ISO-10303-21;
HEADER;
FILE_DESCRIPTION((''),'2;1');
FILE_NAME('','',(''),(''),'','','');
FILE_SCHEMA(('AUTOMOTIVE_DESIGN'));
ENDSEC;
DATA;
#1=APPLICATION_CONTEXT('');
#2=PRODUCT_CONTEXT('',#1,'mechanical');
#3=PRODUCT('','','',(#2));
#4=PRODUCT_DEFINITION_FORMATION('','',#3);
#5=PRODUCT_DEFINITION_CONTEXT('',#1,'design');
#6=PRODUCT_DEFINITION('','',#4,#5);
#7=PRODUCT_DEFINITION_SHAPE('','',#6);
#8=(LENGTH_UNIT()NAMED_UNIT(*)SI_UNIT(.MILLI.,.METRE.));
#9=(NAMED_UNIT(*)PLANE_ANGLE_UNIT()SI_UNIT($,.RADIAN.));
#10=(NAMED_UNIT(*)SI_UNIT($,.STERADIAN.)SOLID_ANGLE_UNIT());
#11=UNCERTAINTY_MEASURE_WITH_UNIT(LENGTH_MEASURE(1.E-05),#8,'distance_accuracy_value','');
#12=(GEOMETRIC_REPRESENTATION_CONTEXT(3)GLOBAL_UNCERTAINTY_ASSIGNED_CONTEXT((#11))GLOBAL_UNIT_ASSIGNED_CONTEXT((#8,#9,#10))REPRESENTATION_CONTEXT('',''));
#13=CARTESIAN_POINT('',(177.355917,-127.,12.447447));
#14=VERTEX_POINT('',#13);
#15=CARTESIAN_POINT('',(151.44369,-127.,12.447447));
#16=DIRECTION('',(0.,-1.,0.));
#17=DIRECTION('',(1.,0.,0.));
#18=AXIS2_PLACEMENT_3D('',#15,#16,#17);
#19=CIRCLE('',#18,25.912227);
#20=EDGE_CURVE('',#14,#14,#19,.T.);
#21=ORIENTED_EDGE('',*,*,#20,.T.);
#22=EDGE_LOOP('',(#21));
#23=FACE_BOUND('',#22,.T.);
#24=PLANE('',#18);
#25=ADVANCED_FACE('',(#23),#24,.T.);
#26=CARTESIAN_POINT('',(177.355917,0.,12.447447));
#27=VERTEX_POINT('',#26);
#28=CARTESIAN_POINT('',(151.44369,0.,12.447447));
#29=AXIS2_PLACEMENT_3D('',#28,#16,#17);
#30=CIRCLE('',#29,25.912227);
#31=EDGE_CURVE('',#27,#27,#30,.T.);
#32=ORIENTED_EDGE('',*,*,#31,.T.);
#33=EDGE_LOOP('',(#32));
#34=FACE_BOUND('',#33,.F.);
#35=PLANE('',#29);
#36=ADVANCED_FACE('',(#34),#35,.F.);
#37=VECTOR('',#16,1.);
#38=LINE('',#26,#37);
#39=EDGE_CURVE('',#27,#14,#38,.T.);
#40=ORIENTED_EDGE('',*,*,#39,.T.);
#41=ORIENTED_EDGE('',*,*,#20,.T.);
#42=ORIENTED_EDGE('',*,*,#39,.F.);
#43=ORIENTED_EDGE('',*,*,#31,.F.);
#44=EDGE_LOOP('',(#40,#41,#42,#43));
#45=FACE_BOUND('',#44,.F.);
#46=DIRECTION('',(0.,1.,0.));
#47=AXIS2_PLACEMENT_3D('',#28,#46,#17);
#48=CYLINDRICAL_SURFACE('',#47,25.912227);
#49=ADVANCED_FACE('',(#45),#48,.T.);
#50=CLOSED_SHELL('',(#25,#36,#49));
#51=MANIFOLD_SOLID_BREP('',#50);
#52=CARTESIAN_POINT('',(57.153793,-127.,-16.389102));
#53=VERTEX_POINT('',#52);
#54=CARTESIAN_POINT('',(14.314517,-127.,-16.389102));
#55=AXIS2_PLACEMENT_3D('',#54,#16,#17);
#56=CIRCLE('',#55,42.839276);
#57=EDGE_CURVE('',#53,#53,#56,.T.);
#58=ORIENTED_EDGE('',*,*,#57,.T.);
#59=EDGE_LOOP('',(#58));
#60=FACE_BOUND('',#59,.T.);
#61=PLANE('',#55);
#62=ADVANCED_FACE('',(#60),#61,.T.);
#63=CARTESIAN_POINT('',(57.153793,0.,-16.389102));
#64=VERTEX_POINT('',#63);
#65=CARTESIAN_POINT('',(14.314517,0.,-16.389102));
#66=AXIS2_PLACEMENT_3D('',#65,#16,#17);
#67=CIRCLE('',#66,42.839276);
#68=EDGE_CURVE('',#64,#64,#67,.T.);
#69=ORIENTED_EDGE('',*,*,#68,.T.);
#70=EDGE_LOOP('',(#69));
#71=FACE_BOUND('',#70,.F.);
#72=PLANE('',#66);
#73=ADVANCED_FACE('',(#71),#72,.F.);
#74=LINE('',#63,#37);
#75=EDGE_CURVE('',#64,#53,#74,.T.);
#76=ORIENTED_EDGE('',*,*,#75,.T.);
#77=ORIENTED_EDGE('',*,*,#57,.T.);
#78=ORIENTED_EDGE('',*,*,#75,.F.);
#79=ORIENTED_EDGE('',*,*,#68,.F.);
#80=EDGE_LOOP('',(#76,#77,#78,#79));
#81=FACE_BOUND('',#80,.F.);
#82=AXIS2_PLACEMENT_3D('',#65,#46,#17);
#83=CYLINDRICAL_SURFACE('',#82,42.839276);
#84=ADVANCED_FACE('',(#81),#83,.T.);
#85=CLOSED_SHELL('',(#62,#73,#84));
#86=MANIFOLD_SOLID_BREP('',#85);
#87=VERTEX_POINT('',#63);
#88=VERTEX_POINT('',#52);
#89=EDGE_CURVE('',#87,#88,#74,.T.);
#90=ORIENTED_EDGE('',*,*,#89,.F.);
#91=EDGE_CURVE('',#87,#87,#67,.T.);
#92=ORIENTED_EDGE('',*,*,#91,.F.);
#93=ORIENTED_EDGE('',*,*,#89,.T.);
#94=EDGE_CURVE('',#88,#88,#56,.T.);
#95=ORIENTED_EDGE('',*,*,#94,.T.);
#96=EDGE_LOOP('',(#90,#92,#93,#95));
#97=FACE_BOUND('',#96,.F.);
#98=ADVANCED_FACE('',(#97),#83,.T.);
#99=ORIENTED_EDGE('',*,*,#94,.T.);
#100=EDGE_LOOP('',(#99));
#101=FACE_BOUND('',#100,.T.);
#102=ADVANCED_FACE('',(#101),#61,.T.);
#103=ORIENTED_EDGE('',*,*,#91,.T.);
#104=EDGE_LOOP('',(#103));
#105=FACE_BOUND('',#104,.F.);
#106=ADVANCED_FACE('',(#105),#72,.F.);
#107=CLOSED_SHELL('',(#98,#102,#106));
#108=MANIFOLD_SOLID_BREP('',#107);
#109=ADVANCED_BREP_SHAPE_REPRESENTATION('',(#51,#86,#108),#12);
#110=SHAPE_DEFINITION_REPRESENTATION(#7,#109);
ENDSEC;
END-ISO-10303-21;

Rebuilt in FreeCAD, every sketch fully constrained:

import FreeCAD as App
import Part
import Sketcher
Q = App.Units.Quantity

doc = App.newDocument("Part")
params = doc.addObject("Spreadsheet::Sheet", "Params")
for row, (alias, value) in enumerate([
    ("pad1_length", "5 in"),
    ("pad2_length", "5 in"),
    ("pad3_length", "5 in"),
], start=1):
    params.set(f"A{row}", alias)
    params.set(f"B{row}", "=" + value)
    params.setAlias(f"B{row}", alias)

body = doc.addObject("PartDesign::Body", "Body")

# Sketch on XZ plane
sketch1 = body.newObject("Sketcher::SketchObject", "Sketch")
sketch1.AttachmentSupport = (doc.getObject("XZ_Plane"), [""])
sketch1.MapMode = "FlatFace"
sketch1.addGeometry(Part.Circle(App.Vector(151, 12, 0), App.Vector(0, 0, 1), 26), False)
sketch1.addConstraint([
    Sketcher.Constraint("Diameter", 0, Q("51.824455 mm")),
    Sketcher.Constraint("DistanceX", -1, 1, 0, 3, Q("151.44369 mm")),
    Sketcher.Constraint("DistanceY", -1, 1, 0, 3, Q("12.447447 mm")),
])
pad1 = body.newObject("PartDesign::Pad", "Pad")
pad1.Profile = sketch1
pad1.setExpression("Length", "Params.pad1_length")
body2 = doc.addObject("PartDesign::Body", "Body001")

# Sketch on XZ plane
sketch2 = body2.newObject("Sketcher::SketchObject", "Sketch001")
sketch2.AttachmentSupport = (doc.getObject("XZ_Plane001"), [""])
sketch2.MapMode = "FlatFace"
sketch2.addGeometry(Part.Circle(App.Vector(14, -16, 0), App.Vector(0, 0, 1), 43), False)
sketch2.addConstraint([
    Sketcher.Constraint("Diameter", 0, Q("85.678552 mm")),
    Sketcher.Constraint("DistanceY", 0, 3, -1, 1, Q("16.389102 mm")),
    Sketcher.Constraint("DistanceX", -1, 1, 0, 3, Q("14.314517 mm")),
])
pad2 = body2.newObject("PartDesign::Pad", "Pad001")
pad2.Profile = sketch2
pad2.setExpression("Length", "Params.pad2_length")
body3 = doc.addObject("PartDesign::Body", "Body002")

# Sketch on XZ plane
sketch3 = body3.newObject("Sketcher::SketchObject", "Sketch002")
sketch3.AttachmentSupport = (doc.getObject("XZ_Plane002"), [""])
sketch3.MapMode = "FlatFace"
sketch3.addGeometry(Part.Circle(App.Vector(14, -16, 0), App.Vector(0, 0, 1), 43), False)
sketch3.addConstraint([
    Sketcher.Constraint("Diameter", 0, Q("85.678552 mm")),
    Sketcher.Constraint("DistanceY", 0, 3, -1, 1, Q("16.389102 mm")),
    Sketcher.Constraint("DistanceX", -1, 1, 0, 3, Q("14.314517 mm")),
])
pad3 = body3.newObject("PartDesign::Pad", "Pad002")
pad3.Profile = sketch3
pad3.setExpression("Length", "Params.pad3_length")

doc.recompute()
